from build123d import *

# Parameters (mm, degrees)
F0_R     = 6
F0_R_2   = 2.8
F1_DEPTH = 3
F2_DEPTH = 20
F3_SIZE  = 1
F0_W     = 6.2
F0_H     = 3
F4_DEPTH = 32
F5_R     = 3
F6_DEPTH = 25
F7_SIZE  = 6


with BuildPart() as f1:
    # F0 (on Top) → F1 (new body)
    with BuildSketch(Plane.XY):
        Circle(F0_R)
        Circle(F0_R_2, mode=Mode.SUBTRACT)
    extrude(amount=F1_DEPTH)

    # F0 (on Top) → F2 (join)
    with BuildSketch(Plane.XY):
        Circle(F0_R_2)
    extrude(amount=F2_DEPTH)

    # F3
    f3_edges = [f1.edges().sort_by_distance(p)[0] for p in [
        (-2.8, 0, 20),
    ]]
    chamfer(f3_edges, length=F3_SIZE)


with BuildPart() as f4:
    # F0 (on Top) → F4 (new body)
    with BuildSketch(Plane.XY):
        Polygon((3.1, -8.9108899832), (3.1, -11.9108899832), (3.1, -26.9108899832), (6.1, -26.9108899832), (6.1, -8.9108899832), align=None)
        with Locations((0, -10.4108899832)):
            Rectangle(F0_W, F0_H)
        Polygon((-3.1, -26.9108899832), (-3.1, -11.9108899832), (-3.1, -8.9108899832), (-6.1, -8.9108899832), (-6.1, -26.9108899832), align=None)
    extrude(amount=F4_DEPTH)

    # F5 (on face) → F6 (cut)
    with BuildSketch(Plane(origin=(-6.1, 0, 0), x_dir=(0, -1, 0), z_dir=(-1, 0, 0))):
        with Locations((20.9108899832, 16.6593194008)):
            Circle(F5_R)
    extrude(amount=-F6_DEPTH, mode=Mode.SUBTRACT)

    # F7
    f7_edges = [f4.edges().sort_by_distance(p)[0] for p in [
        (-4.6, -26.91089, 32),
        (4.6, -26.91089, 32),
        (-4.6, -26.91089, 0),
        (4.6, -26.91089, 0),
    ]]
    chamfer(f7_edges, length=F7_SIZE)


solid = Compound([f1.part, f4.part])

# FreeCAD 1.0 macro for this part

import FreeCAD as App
import Part
import Sketcher


def edges_at(feature, points):
    """Names of the edges that pass closest to the given points."""
    edges = feature.Shape.Edges
    near = lambda p: min(range(len(edges)), key=lambda i: edges[i].distToShape(Part.Vertex(*p))[0])
    return sorted({f"Edge{near(p) + 1}" for p in points})

doc = App.newDocument("Part")
body = doc.addObject("PartDesign::Body", "Body")

sketch1 = doc.addObject("Sketcher::SketchObject", "Sketch")
body.addObject(sketch1)
sketch1.AttachmentSupport = (doc.XY_Plane, [""])
sketch1.MapMode = "FlatFace"
sketch1.addGeometry(Part.Circle(App.Vector(0, 0, 0), App.Vector(0, 0, 1), 6), False)
sketch1.addGeometry(Part.Circle(App.Vector(0, 0, 0), App.Vector(0, 0, 1), 2.8), False)
sketch1.addConstraint(Sketcher.Constraint("Coincident", 0, 3, -1, 1))
sketch1.addConstraint(Sketcher.Constraint("Coincident", 1, 3, -1, 1))
sketch1.addConstraint(Sketcher.Constraint("Diameter", 0, 12.0))
sketch1.addConstraint(Sketcher.Constraint("Diameter", 1, 5.6))
pad1 = doc.addObject("PartDesign::Pad", "Pad")
body.addObject(pad1)
pad1.Profile = sketch1
pad1.Length = 3

sketch2 = doc.addObject("Sketcher::SketchObject", "Sketch001")
body.addObject(sketch2)
sketch2.AttachmentSupport = (doc.XY_Plane, [""])
sketch2.MapMode = "FlatFace"
sketch2.addGeometry(Part.Circle(App.Vector(0, 0, 0), App.Vector(0, 0, 1), 2.8), False)
sketch2.addConstraint(Sketcher.Constraint("Coincident", 0, 3, -1, 1))
sketch2.addConstraint(Sketcher.Constraint("Diameter", 0, 5.6))
pad2 = doc.addObject("PartDesign::Pad", "Pad001")
body.addObject(pad2)
pad2.Profile = sketch2
pad2.Length = 20
doc.recompute()

chamfer = doc.addObject("PartDesign::Chamfer", "Chamfer")
body.addObject(chamfer)
chamfer.Base = (pad2, edges_at(pad2, [(-2.8, 0, 20)]))
chamfer.Size = 1
body2 = doc.addObject("PartDesign::Body", "Body001")

sketch3 = doc.addObject("Sketcher::SketchObject", "Sketch002")
body2.addObject(sketch3)
sketch3.AttachmentSupport = (doc.getObject("XY_Plane001"), [""])
sketch3.MapMode = "FlatFace"
sketch3.addGeometry(Part.LineSegment(App.Vector(3.1, -11.9, 0), App.Vector(3.1, -26.9, 0)), False)
sketch3.addGeometry(Part.LineSegment(App.Vector(3.1, -26.9, 0), App.Vector(6.1, -26.9, 0)), False)
sketch3.addGeometry(Part.LineSegment(App.Vector(6.1, -26.9, 0), App.Vector(6.1, -8.9, 0)), False)
sketch3.addGeometry(Part.LineSegment(App.Vector(6.1, -8.9, 0), App.Vector(-6.1, -8.9, 0)), False)
sketch3.addGeometry(Part.LineSegment(App.Vector(-6.1, -8.9, 0), App.Vector(-6.1, -26.9, 0)), False)
sketch3.addGeometry(Part.LineSegment(App.Vector(-6.1, -26.9, 0), App.Vector(-3.1, -26.9, 0)), False)
sketch3.addGeometry(Part.LineSegment(App.Vector(-3.1, -26.9, 0), App.Vector(-3.1, -11.9, 0)), False)
sketch3.addGeometry(Part.LineSegment(App.Vector(-3.1, -11.9, 0), App.Vector(3.1, -11.9, 0)), False)
sketch3.addConstraint(Sketcher.Constraint("Coincident", 0, 2, 1, 1))
sketch3.addConstraint(Sketcher.Constraint("Coincident", 1, 2, 2, 1))
sketch3.addConstraint(Sketcher.Constraint("Coincident", 2, 2, 3, 1))
sketch3.addConstraint(Sketcher.Constraint("Coincident", 3, 2, 4, 1))
sketch3.addConstraint(Sketcher.Constraint("Coincident", 4, 2, 5, 1))
sketch3.addConstraint(Sketcher.Constraint("Coincident", 5, 2, 6, 1))
sketch3.addConstraint(Sketcher.Constraint("Coincident", 6, 2, 7, 1))
sketch3.addConstraint(Sketcher.Constraint("Coincident", 7, 2, 0, 1))
sketch3.addConstraint(Sketcher.Constraint("Vertical", 0))
sketch3.addConstraint(Sketcher.Constraint("Horizontal", 1))
sketch3.addConstraint(Sketcher.Constraint("Vertical", 2))
sketch3.addConstraint(Sketcher.Constraint("Horizontal", 3))
sketch3.addConstraint(Sketcher.Constraint("Vertical", 4))
sketch3.addConstraint(Sketcher.Constraint("Horizontal", 5))
sketch3.addConstraint(Sketcher.Constraint("Vertical", 6))
sketch3.addConstraint(Sketcher.Constraint("Horizontal", 7))
sketch3.addConstraint(Sketcher.Constraint("Symmetric", 1, 2, 4, 2, -2))
sketch3.addConstraint(Sketcher.Constraint("Equal", 1, 5))
sketch3.addConstraint(Sketcher.Constraint("DistanceX", 1, 1, 1, 2, 3.0))
sketch3.addConstraint(Sketcher.Constraint("DistanceY", 0, 2, 0, 1, 15.0))
sketch3.addConstraint(Sketcher.Constraint("DistanceY", 2, 1, 2, 2, 18.0))
sketch3.addConstraint(Sketcher.Constraint("DistanceX", 3, 2, 3, 1, 12.2))
sketch3.addConstraint(Sketcher.Constraint("DistanceY", 0, 2, -1, 1, 26.91089))
pad3 = doc.addObject("PartDesign::Pad", "Pad002")
body2.addObject(pad3)
pad3.Profile = sketch3
pad3.Length = 32

sketch4 = doc.addObject("Sketcher::SketchObject", "Sketch003")
body2.addObject(sketch4)
sketch4.AttachmentSupport = (doc.getObject("YZ_Plane001"), [""])
sketch4.MapMode = "FlatFace"
sketch4.AttachmentOffset = App.Placement(App.Vector(0, 0, -6.1), App.Rotation())
sketch4.addGeometry(Part.Circle(App.Vector(-20.9, 16.7, 0), App.Vector(0, 0, 1), 3), False)
sketch4.addConstraint(Sketcher.Constraint("Diameter", 0, 6.0))
sketch4.addConstraint(Sketcher.Constraint("DistanceX", 0, 3, -1, 1, 20.91089))
sketch4.addConstraint(Sketcher.Constraint("DistanceY", -1, 1, 0, 3, 16.659319))
pocket1 = doc.addObject("PartDesign::Pocket", "Pocket")
body2.addObject(pocket1)
pocket1.Profile = sketch4
pocket1.Length = 25
pocket1.Reversed = True
doc.recompute()

chamfer2 = doc.addObject("PartDesign::Chamfer", "Chamfer001")
body2.addObject(chamfer2)
chamfer2.Base = (pocket1, edges_at(pocket1, [
    (-4.6, -26.911, 32),
    (4.6, -26.911, 32),
    (-4.6, -26.911, 0),
    (4.6, -26.911, 0),
]))
chamfer2.Size = 6

doc.recompute()
